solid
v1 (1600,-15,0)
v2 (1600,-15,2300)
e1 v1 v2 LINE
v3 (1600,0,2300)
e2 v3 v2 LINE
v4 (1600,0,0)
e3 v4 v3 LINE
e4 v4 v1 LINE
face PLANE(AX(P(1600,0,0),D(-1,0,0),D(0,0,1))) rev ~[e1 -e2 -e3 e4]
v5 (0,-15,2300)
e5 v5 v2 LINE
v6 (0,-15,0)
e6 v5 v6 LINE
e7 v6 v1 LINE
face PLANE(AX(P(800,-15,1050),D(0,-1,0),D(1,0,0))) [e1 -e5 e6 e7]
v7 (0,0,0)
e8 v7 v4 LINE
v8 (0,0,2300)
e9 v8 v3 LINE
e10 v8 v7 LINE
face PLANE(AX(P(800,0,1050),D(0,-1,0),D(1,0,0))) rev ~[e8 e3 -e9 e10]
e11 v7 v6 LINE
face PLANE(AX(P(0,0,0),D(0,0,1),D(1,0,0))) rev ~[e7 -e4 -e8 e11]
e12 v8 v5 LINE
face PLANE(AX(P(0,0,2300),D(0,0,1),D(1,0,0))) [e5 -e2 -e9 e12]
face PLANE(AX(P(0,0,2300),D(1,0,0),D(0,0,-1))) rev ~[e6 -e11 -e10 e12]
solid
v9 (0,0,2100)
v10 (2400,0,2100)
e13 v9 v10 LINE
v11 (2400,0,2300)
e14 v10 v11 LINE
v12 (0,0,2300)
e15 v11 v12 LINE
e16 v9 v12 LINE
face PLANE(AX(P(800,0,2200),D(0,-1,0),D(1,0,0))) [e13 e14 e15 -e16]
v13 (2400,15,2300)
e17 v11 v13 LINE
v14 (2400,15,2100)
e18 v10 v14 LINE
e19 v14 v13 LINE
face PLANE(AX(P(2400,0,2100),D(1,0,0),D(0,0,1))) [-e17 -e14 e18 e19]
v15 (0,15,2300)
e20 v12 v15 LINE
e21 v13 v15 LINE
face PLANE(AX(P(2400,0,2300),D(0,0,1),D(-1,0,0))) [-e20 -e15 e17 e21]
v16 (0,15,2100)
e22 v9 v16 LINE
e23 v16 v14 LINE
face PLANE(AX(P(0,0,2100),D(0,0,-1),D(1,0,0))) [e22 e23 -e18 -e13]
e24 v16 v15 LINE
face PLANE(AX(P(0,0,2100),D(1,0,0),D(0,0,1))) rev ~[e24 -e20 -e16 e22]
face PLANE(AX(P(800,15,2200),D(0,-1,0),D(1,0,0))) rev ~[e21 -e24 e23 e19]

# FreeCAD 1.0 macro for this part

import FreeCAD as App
import Part
import Sketcher
from FreeCAD import Vector
Q = App.Units.Quantity


def add_polygon(sketch, points):
    """Adds a closed chain of lines whose ends are joined by coincident constraints."""
    first, n = sketch.GeometryCount, len(points)
    for a, b in zip(points, points[1:] + points[:1]):
        sketch.addGeometry(Part.LineSegment(App.Vector(*a, 0), App.Vector(*b, 0)), False)
    for i in range(n):
        sketch.addConstraint(Sketcher.Constraint("Coincident", first + i, 2, first + (i + 1) % n, 1))

doc = App.newDocument("Part")
body = doc.addObject("PartDesign::Body", "Body")

# Sketch on XZ plane
sketch1 = body.newObject("Sketcher::SketchObject", "Sketch")
sketch1.AttachmentSupport = (doc.getObject("XZ_Plane"), [""])
sketch1.MapMode = "FlatFace"
add_polygon(sketch1, [(0, 0), (1600, 0), (1600, 2300), (0, 2300)])  # lines 0-3
sketch1.addConstraint(Sketcher.Constraint("Horizontal", 0))
sketch1.addConstraint(Sketcher.Constraint("Vertical", 1))
sketch1.addConstraint(Sketcher.Constraint("Horizontal", 2))
sketch1.addConstraint(Sketcher.Constraint("Vertical", 3))
sketch1.addConstraint(Sketcher.Constraint("Coincident", 3, 2, -1, 1))
sketch1.addConstraint(Sketcher.Constraint("DistanceX", 0, 1, 0, 2, Q("1600 mm")))
sketch1.addConstraint(Sketcher.Constraint("DistanceY", 1, 1, 1, 2, Q("2300 mm")))
pad1 = body.newObject("PartDesign::Pad", "Pad")
pad1.Profile = sketch1
pad1.Length = 15
body2 = doc.addObject("PartDesign::Body", "Body001")

# Sketch on XZ plane
sketch2 = body2.newObject("Sketcher::SketchObject", "Sketch001")
sketch2.AttachmentSupport = (doc.getObject("XZ_Plane001"), [""])
sketch2.MapMode = "FlatFace"
add_polygon(sketch2, [(0, 2300), (0, 2100), (2400, 2100), (2400, 2300)])  # lines 0-3
sketch2.addConstraint(Sketcher.Constraint("Vertical", 0))
sketch2.addConstraint(Sketcher.Constraint("Horizontal", 1))
sketch2.addConstraint(Sketcher.Constraint("Vertical", 2))
sketch2.addConstraint(Sketcher.Constraint("Horizontal", 3))
sketch2.addConstraint(Sketcher.Constraint("PointOnObject", 0, 2, -2))
sketch2.addConstraint(Sketcher.Constraint("DistanceX", 1, 1, 1, 2, Q("2400 mm")))
sketch2.addConstraint(Sketcher.Constraint("DistanceY", 0, 2, 0, 1, Q("200 mm")))
sketch2.addConstraint(Sketcher.Constraint("DistanceY", -1, 1, 0, 2, Q("2100 mm")))
pad2 = body2.newObject("PartDesign::Pad", "Pad001")
pad2.Profile = sketch2
pad2.Length = 15
pad2.Reversed = True

doc.recompute()
